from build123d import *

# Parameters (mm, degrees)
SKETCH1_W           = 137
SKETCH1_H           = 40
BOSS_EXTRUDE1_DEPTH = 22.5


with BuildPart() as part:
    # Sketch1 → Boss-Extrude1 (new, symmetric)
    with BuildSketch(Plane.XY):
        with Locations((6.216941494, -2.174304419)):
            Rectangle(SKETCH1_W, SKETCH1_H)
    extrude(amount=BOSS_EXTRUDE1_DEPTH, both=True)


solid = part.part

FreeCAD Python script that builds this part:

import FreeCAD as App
import Part
import Sketcher
Q = App.Units.Quantity

doc = App.newDocument("Part")
params = doc.addObject("Spreadsheet::Sheet", "Params")
for row, (alias, value) in enumerate([
    ("sketch1_width", "137 mm"),
    ("sketch1_height", "40 mm"),
    ("pad1_length", "45 mm"),
], start=1):
    params.set(f"A{row}", alias)
    params.set(f"B{row}", "=" + value)
    params.setAlias(f"B{row}", alias)

body = doc.addObject("PartDesign::Body", "Body")

sketch1 = doc.addObject("Sketcher::SketchObject", "Sketch")
body.addObject(sketch1)
sketch1.AttachmentSupport = (doc.XY_Plane, [""])
sketch1.MapMode = "FlatFace"
sketch1.addGeometry(Part.LineSegment(App.Vector(-62.283059, 17.825696, 0), App.Vector(-62.283059, -22.174304, 0)), False)
sketch1.addGeometry(Part.LineSegment(App.Vector(-62.283059, -22.174304, 0), App.Vector(74.716941, -22.174304, 0)), False)
sketch1.addGeometry(Part.LineSegment(App.Vector(74.716941, -22.174304, 0), App.Vector(74.716941, 17.825696, 0)), False)
sketch1.addGeometry(Part.LineSegment(App.Vector(74.716941, 17.825696, 0), App.Vector(-62.283059, 17.825696, 0)), False)
sketch1.addConstraint(Sketcher.Constraint("Coincident", 0, 2, 1, 1))
sketch1.addConstraint(Sketcher.Constraint("Coincident", 1, 2, 2, 1))
sketch1.addConstraint(Sketcher.Constraint("Coincident", 2, 2, 3, 1))
sketch1.addConstraint(Sketcher.Constraint("Coincident", 3, 2, 0, 1))
sketch1.addConstraint(Sketcher.Constraint("Vertical", 0))
sketch1.addConstraint(Sketcher.Constraint("Horizontal", 1))
sketch1.addConstraint(Sketcher.Constraint("Vertical", 2))
sketch1.addConstraint(Sketcher.Constraint("Horizontal", 3))
sketch1.addConstraint(Sketcher.Constraint("DistanceX", 1, 1, 1, 2, Q("137 mm")))
sketch1.addConstraint(Sketcher.Constraint("DistanceY", 0, 2, 0, 1, Q("40 mm")))
sketch1.addConstraint(Sketcher.Constraint("DistanceX", 0, 2, -1, 1, Q("62.283059 mm")))
sketch1.addConstraint(Sketcher.Constraint("DistanceY", 0, 2, -1, 1, Q("22.174304 mm")))
sketch1.setExpression("Constraints[8]", "Params.sketch1_width")
sketch1.setExpression("Constraints[9]", "Params.sketch1_height")
pad1 = doc.addObject("PartDesign::Pad", "Pad")
body.addObject(pad1)
pad1.Profile = sketch1
pad1.setExpression("Length", "Params.pad1_length")
pad1.Midplane = True

doc.recompute()
